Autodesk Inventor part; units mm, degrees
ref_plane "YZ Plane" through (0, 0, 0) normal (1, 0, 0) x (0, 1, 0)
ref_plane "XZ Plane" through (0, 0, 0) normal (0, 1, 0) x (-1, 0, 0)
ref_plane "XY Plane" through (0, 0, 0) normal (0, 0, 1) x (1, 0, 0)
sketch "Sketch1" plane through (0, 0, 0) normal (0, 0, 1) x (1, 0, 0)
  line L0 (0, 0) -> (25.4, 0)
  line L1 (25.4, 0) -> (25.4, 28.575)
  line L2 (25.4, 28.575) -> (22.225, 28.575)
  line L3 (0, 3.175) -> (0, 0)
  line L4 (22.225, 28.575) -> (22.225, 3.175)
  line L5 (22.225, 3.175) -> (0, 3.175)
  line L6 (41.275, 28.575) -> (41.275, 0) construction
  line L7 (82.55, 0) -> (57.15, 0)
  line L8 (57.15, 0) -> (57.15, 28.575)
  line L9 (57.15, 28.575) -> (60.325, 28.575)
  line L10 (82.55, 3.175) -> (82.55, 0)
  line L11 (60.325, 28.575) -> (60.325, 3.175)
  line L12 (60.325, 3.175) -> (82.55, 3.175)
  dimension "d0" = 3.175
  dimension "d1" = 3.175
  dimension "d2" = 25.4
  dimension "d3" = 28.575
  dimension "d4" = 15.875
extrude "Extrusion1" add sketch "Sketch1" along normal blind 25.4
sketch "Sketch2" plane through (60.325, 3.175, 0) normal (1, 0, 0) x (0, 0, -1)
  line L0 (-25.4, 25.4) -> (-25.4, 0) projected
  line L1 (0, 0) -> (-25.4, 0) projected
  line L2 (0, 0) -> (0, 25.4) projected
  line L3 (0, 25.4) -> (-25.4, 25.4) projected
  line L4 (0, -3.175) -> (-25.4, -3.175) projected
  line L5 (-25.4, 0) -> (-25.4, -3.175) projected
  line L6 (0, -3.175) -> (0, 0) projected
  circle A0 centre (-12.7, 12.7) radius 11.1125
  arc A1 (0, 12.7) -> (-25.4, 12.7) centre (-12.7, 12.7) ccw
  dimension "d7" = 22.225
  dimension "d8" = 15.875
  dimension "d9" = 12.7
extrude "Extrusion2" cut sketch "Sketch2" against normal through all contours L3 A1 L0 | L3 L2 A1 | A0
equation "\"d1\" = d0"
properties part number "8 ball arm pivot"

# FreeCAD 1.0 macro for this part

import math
import FreeCAD as App
import Part
import Sketcher
Q = App.Units.Quantity

doc = App.newDocument("Part")
body = doc.addObject("PartDesign::Body", "Body")
body.AllowCompound = True

sketch1 = body.newObject("Sketcher::SketchObject", "Sketch")
sketch1.AttachmentSupport = (doc.getObject("XY_Plane"), [""])
sketch1.MapMode = "FlatFace"
sketch1.addGeometry(Part.LineSegment(App.Vector(0, 3.2, 0), App.Vector(0, 0, 0)), False)
sketch1.addGeometry(Part.LineSegment(App.Vector(0, 0, 0), App.Vector(25.4, 0, 0)), False)
sketch1.addGeometry(Part.LineSegment(App.Vector(25.4, 0, 0), App.Vector(25.4, 28.6, 0)), False)
sketch1.addGeometry(Part.LineSegment(App.Vector(25.4, 28.6, 0), App.Vector(22.2, 28.6, 0)), False)
sketch1.addGeometry(Part.LineSegment(App.Vector(22.2, 28.6, 0), App.Vector(22.2, 3.2, 0)), False)
sketch1.addGeometry(Part.LineSegment(App.Vector(22.2, 3.2, 0), App.Vector(0, 3.2, 0)), False)
sketch1.addGeometry(Part.LineSegment(App.Vector(57.1, 0, 0), App.Vector(82.5, 0, 0)), False)
sketch1.addGeometry(Part.LineSegment(App.Vector(82.5, 0, 0), App.Vector(82.5, 3.2, 0)), False)
sketch1.addGeometry(Part.LineSegment(App.Vector(82.5, 3.2, 0), App.Vector(60.3, 3.2, 0)), False)
sketch1.addGeometry(Part.LineSegment(App.Vector(60.3, 3.2, 0), App.Vector(60.3, 28.6, 0)), False)
sketch1.addGeometry(Part.LineSegment(App.Vector(60.3, 28.6, 0), App.Vector(57.1, 28.6, 0)), False)
sketch1.addGeometry(Part.LineSegment(App.Vector(57.1, 28.6, 0), App.Vector(57.1, 0, 0)), False)
sketch1.addConstraint(Sketcher.Constraint("Coincident", 0, 2, 1, 1))
sketch1.addConstraint(Sketcher.Constraint("Coincident", 1, 2, 2, 1))
sketch1.addConstraint(Sketcher.Constraint("Coincident", 2, 2, 3, 1))
sketch1.addConstraint(Sketcher.Constraint("Coincident", 3, 2, 4, 1))
sketch1.addConstraint(Sketcher.Constraint("Coincident", 4, 2, 5, 1))
sketch1.addConstraint(Sketcher.Constraint("Coincident", 5, 2, 0, 1))
sketch1.addConstraint(Sketcher.Constraint("Coincident", 6, 2, 7, 1))
sketch1.addConstraint(Sketcher.Constraint("Coincident", 7, 2, 8, 1))
sketch1.addConstraint(Sketcher.Constraint("Coincident", 8, 2, 9, 1))
sketch1.addConstraint(Sketcher.Constraint("Coincident", 9, 2, 10, 1))
sketch1.addConstraint(Sketcher.Constraint("Coincident", 10, 2, 11, 1))
sketch1.addConstraint(Sketcher.Constraint("Coincident", 11, 2, 6, 1))
sketch1.addConstraint(Sketcher.Constraint("Vertical", 0))
sketch1.addConstraint(Sketcher.Constraint("Horizontal", 1))
sketch1.addConstraint(Sketcher.Constraint("Vertical", 2))
sketch1.addConstraint(Sketcher.Constraint("Horizontal", 3))
sketch1.addConstraint(Sketcher.Constraint("Vertical", 4))
sketch1.addConstraint(Sketcher.Constraint("Horizontal", 5))
sketch1.addConstraint(Sketcher.Constraint("Horizontal", 6))
sketch1.addConstraint(Sketcher.Constraint("Vertical", 7))
sketch1.addConstraint(Sketcher.Constraint("Horizontal", 8))
sketch1.addConstraint(Sketcher.Constraint("Vertical", 9))
sketch1.addConstraint(Sketcher.Constraint("Horizontal", 10))
sketch1.addConstraint(Sketcher.Constraint("Vertical", 11))
sketch1.addConstraint(Sketcher.Constraint("Coincident", 0, 2, -1, 1))
sketch1.addConstraint(Sketcher.Constraint("PointOnObject", 6, 2, -1))
sketch1.addConstraint(Sketcher.Constraint("Horizontal", 5, 2, 7, 2))
sketch1.addConstraint(Sketcher.Constraint("Horizontal", 3, 2, 9, 2))
sketch1.addConstraint(Sketcher.Constraint("Equal", 1, 6))
sketch1.addConstraint(Sketcher.Constraint("Equal", 5, 8))
sketch1.addConstraint(Sketcher.Constraint("Equal", 10, 0))
sketch1.addConstraint(Sketcher.Constraint("Equal", 6, 4))
sketch1.addConstraint(Sketcher.Constraint("DistanceX", 1, 1, 1, 2, Q("1 in")))
sketch1.addConstraint(Sketcher.Constraint("DistanceX", 3, 2, 3, 1, Q("0.125 in")))
sketch1.addConstraint(Sketcher.Constraint("DistanceX", 4, 2, 8, 2, Q("1.5 in")))
pad1 = body.newObject("PartDesign::Pad", "Pad")
pad1.Profile = sketch1
pad1.Length = Q("1 in")

sketch2 = body.newObject("Sketcher::SketchObject", "Sketch001")
sketch2.AttachmentSupport = (doc.getObject("YZ_Plane"), [""])
sketch2.MapMode = "FlatFace"
sketch2.AttachmentOffset = App.Placement(App.Vector(0, 0, 2.375 * 25.4), App.Rotation())
sketch2.addGeometry(Part.LineSegment(App.Vector(29, 13, 0), App.Vector(29, 25, 0)), False)
sketch2.addGeometry(Part.LineSegment(App.Vector(29, 25, 0), App.Vector(16, 25, 0)), False)
sketch2.addGeometry(Part.ArcOfCircle(Part.Circle(App.Vector(16, 13, 0), App.Vector(0, 0, 1), 13), math.radians(0), math.radians(90)), False)
sketch2.addGeometry(Part.LineSegment(App.Vector(29, 0, 0), App.Vector(29, 13, 0)), False)
sketch2.addGeometry(Part.ArcOfCircle(Part.Circle(App.Vector(16, 13, 0), App.Vector(0, 0, 1), 13), math.radians(-90), math.radians(0)), False)
sketch2.addGeometry(Part.LineSegment(App.Vector(16, 0, 0), App.Vector(29, 0, 0)), False)
sketch2.addGeometry(Part.Circle(App.Vector(16, 13, 0), App.Vector(0, 0, 1), 11), False)
sketch2.addConstraint(Sketcher.Constraint("Coincident", 0, 2, 1, 1))
sketch2.addConstraint(Sketcher.Constraint("Tangent", 1, 2, 2, 2))
sketch2.addConstraint(Sketcher.Constraint("Tangent", 2, 1, 0, 1))
sketch2.addConstraint(Sketcher.Constraint("Tangent", 3, 2, 4, 2))
sketch2.addConstraint(Sketcher.Constraint("Tangent", 4, 1, 5, 1))
sketch2.addConstraint(Sketcher.Constraint("Coincident", 5, 2, 3, 1))
sketch2.addConstraint(Sketcher.Constraint("Vertical", 0))
sketch2.addConstraint(Sketcher.Constraint("Horizontal", 1))
sketch2.addConstraint(Sketcher.Constraint("Vertical", 3))
sketch2.addConstraint(Sketcher.Constraint("Horizontal", 5))
sketch2.addConstraint(Sketcher.Constraint("Coincident", 4, 3, 2, 3))
sketch2.addConstraint(Sketcher.Constraint("Coincident", 6, 3, 2, 3))
sketch2.addConstraint(Sketcher.Constraint("Equal", 2, 4))
sketch2.addConstraint(Sketcher.Constraint("PointOnObject", 4, 1, -1))
sketch2.addConstraint(Sketcher.Constraint("Radius", 2, Q("0.5 in")))
sketch2.addConstraint(Sketcher.Constraint("Diameter", 6, Q("0.875 in")))
sketch2.addConstraint(Sketcher.Constraint("DistanceX", -1, 1, 2, 3, Q("0.625 in")))
pocket1 = body.newObject("PartDesign::Pocket", "Pocket")
pocket1.Profile = sketch2
pocket1.Type = "ThroughAll"

doc.recompute()
